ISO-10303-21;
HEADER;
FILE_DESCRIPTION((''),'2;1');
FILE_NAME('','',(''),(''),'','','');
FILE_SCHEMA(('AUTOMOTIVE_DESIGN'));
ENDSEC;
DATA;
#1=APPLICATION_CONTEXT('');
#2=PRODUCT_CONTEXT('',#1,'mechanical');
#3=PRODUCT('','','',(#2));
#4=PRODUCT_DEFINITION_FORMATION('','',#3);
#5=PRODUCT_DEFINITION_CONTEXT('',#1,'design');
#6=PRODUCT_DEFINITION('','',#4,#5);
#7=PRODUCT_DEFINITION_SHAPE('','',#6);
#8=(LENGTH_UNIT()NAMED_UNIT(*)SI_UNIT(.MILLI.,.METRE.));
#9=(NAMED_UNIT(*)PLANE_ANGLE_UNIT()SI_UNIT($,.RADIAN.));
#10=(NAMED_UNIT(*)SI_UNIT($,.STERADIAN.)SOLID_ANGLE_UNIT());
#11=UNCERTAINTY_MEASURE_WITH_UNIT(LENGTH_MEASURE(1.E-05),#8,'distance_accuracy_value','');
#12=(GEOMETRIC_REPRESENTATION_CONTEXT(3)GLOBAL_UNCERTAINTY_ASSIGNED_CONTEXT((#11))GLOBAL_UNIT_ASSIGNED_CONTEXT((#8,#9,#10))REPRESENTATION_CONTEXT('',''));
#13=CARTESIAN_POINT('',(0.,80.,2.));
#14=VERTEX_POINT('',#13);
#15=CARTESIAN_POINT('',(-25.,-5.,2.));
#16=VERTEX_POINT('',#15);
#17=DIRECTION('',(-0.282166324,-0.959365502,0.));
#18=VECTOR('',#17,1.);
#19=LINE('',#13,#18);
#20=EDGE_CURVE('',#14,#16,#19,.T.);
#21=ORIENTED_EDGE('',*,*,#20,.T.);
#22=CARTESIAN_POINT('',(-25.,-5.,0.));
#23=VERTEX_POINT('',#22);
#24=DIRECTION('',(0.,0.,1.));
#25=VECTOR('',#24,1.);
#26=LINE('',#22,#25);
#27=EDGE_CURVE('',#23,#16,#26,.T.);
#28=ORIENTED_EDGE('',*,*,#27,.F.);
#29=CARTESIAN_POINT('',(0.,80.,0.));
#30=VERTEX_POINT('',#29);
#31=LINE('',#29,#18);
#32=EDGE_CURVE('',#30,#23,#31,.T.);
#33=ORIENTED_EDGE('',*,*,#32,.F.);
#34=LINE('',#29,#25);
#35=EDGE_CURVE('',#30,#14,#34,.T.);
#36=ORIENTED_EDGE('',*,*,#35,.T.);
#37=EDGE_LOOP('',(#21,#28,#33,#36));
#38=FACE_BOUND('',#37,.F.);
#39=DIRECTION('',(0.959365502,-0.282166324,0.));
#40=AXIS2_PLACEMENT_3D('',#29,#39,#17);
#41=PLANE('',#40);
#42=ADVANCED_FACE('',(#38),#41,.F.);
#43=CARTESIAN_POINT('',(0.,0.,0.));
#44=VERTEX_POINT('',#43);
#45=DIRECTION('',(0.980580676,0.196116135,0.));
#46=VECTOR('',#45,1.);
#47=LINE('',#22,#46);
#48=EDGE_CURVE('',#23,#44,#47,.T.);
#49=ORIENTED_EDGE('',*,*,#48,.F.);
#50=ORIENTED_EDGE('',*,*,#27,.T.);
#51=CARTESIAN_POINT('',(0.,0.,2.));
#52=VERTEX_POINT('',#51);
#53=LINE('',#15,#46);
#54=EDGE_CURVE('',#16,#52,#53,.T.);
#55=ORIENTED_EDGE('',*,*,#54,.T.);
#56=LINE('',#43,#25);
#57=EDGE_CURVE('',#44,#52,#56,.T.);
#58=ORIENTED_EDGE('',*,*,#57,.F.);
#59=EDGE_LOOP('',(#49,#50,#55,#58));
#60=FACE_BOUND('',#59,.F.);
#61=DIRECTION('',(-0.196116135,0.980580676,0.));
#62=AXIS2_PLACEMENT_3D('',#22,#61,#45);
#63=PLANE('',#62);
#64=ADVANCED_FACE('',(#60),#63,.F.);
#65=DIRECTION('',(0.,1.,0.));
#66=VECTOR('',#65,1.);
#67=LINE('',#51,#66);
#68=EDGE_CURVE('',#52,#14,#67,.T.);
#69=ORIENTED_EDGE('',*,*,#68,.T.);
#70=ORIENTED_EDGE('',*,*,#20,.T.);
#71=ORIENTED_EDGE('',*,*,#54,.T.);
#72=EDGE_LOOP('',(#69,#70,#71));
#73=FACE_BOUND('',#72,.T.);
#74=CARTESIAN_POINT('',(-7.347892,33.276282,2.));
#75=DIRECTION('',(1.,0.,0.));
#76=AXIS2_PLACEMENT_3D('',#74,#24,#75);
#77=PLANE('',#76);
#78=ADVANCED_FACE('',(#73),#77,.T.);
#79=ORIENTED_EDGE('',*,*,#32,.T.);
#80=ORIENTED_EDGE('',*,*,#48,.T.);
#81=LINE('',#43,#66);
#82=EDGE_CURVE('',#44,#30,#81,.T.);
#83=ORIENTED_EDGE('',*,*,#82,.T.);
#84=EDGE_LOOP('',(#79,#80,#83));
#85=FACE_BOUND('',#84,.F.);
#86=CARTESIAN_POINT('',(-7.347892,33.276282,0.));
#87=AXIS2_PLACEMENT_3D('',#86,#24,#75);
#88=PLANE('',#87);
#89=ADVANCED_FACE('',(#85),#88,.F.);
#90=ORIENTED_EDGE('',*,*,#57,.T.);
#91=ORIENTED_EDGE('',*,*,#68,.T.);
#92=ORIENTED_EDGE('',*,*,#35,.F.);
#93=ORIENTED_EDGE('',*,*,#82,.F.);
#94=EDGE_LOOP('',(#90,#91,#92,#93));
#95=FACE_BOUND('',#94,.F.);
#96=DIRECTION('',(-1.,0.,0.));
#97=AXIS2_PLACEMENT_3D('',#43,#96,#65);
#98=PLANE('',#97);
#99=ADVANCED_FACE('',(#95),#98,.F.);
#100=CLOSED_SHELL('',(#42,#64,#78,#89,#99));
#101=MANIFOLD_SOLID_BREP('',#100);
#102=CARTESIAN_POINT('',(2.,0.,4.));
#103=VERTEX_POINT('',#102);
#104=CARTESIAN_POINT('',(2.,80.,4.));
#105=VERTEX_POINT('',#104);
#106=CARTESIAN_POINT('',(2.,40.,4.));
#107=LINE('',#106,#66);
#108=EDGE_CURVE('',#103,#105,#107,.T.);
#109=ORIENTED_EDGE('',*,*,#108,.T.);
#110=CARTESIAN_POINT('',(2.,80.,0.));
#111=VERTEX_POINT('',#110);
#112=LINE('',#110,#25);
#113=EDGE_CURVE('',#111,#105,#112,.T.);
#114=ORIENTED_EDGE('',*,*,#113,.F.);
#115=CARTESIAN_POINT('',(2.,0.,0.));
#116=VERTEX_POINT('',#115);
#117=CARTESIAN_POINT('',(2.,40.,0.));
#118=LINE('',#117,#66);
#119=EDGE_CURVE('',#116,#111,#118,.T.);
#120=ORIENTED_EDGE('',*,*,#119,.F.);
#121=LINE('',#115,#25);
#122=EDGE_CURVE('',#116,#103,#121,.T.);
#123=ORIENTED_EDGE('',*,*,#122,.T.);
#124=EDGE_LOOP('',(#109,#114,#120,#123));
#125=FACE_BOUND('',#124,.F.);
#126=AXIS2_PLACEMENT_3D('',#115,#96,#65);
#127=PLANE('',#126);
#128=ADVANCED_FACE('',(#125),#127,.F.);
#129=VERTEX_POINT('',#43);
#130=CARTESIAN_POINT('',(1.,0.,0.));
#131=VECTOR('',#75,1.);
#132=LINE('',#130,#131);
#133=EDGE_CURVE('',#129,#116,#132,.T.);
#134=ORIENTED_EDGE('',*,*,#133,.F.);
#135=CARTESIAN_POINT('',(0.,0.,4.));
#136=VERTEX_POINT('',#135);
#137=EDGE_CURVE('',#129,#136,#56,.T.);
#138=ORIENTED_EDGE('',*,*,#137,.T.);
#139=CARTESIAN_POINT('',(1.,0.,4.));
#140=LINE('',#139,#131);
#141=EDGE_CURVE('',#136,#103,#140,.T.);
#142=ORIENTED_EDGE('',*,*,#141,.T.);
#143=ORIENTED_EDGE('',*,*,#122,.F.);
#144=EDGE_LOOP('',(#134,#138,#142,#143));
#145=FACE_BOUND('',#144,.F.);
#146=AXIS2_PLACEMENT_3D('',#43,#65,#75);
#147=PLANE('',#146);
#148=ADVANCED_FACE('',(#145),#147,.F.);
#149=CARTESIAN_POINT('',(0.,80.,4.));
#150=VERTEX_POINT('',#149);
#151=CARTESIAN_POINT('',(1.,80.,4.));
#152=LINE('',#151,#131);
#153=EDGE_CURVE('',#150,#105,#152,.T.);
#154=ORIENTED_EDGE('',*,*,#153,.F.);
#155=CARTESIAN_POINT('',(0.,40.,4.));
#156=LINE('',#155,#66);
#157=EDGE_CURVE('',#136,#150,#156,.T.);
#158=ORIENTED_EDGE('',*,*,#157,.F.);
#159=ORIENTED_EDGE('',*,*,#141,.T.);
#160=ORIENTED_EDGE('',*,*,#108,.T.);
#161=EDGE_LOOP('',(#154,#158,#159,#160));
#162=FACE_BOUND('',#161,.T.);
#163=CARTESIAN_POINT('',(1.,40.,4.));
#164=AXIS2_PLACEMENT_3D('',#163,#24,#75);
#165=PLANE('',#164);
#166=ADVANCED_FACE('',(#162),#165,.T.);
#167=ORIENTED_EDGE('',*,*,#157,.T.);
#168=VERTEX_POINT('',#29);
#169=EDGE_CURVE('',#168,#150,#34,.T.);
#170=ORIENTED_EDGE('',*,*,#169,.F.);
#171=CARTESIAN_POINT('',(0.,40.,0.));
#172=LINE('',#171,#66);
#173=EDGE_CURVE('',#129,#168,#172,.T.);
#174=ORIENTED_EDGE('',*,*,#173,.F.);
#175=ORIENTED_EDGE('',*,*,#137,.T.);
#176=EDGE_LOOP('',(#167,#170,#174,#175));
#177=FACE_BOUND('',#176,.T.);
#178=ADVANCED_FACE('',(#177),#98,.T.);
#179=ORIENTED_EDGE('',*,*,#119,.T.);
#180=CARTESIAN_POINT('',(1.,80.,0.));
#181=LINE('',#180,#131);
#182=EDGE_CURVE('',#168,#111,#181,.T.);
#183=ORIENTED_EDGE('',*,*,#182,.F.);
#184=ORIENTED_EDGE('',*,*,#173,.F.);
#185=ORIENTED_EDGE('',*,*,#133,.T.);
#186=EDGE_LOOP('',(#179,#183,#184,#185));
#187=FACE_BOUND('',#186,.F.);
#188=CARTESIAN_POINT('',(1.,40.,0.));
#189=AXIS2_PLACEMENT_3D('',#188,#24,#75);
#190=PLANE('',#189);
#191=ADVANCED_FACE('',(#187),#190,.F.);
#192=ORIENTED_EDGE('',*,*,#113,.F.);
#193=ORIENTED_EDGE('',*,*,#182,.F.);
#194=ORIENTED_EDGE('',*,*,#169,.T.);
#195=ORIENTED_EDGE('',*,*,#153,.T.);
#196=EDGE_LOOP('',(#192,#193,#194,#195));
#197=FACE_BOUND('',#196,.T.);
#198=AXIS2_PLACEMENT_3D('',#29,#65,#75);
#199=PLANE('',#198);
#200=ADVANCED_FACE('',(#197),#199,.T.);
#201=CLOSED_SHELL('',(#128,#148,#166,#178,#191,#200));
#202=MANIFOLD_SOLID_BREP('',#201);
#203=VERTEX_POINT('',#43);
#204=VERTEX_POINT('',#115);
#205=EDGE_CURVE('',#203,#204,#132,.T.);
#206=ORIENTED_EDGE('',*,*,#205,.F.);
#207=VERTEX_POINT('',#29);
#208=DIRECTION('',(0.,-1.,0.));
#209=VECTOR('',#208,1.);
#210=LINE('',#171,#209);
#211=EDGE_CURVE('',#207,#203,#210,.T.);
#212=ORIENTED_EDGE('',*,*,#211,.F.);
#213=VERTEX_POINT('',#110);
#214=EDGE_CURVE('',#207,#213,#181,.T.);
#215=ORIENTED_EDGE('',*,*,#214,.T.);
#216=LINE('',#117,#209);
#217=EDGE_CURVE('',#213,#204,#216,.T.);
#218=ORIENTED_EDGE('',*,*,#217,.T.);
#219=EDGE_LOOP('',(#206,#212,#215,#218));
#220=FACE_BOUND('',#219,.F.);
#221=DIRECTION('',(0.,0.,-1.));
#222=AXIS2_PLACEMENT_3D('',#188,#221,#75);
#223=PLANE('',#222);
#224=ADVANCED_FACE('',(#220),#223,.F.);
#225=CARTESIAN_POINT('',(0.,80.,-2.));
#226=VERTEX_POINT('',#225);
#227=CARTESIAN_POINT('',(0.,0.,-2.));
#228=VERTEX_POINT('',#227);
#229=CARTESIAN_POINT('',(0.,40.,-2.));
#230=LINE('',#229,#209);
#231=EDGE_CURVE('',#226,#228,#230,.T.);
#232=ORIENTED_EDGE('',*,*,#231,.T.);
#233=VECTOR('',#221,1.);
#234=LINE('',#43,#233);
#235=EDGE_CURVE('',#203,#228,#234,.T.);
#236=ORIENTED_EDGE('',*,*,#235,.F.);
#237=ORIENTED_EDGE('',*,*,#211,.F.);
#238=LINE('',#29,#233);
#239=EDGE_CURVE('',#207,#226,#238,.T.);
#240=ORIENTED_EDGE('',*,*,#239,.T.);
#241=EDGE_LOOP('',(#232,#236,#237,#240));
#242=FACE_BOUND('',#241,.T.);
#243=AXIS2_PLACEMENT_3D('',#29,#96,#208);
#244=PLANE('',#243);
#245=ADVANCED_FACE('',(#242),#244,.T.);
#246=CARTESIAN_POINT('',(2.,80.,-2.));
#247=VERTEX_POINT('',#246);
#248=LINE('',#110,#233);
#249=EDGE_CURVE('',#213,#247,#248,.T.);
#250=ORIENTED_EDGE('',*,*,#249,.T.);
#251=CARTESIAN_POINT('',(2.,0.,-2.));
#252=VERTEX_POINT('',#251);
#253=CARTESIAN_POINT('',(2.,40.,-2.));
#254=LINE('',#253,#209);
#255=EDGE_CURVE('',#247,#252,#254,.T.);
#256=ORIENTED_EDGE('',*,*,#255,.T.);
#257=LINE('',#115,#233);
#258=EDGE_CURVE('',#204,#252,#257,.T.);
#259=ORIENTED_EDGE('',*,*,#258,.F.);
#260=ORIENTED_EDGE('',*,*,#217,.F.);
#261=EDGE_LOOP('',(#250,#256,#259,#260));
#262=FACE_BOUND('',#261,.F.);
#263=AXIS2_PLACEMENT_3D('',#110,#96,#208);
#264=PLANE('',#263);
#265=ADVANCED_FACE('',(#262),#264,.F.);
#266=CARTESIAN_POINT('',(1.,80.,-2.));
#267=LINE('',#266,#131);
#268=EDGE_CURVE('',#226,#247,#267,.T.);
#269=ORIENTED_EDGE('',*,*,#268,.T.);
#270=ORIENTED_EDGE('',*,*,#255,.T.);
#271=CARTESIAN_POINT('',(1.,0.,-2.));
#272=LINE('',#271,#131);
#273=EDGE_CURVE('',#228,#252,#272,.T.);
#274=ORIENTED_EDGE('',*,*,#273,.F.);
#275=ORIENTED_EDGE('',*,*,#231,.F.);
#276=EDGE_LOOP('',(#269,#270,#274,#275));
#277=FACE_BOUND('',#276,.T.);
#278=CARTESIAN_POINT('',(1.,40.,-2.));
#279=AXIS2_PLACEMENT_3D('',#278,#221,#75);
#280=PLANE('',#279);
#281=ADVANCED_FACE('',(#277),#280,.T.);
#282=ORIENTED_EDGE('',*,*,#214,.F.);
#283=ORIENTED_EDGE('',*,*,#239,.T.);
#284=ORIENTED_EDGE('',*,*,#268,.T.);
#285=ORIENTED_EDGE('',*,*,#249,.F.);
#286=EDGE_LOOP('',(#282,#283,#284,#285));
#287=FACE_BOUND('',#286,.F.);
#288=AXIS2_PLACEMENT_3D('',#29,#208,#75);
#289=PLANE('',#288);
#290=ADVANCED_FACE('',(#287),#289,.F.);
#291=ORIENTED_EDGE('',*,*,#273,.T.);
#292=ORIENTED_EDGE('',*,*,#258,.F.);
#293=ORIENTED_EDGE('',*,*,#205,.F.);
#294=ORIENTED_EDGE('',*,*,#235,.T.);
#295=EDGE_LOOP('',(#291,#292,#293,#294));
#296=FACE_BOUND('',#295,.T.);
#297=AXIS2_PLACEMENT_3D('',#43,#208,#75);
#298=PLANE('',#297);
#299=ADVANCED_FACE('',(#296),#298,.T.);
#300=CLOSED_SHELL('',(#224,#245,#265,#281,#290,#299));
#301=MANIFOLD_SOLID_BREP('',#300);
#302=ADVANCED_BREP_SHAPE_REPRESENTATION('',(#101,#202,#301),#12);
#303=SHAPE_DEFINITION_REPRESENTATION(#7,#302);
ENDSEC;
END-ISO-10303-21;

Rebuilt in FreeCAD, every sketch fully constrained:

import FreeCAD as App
import Part
import Sketcher

V = App.Vector


def add_polygon(sketch, points):
    """Adds a closed chain of lines whose ends are joined by coincident constraints."""
    first, n = sketch.GeometryCount, len(points)
    for a, b in zip(points, points[1:] + points[:1]):
        sketch.addGeometry(Part.LineSegment(App.Vector(*a, 0), App.Vector(*b, 0)), False)
    for i in range(n):
        sketch.addConstraint(Sketcher.Constraint("Coincident", first + i, 2, first + (i + 1) % n, 1))

doc = App.newDocument("Part")
params = doc.addObject("Spreadsheet::Sheet", "Params")
for row, (alias, value) in enumerate([
    ("sketch1_height", "80 mm"),
    ("pad1_length", "2 mm"),
    ("sketch2_width", "2 mm"),
    ("sketch2_height", "80 mm"),
    ("pad2_length", "2 mm"),
    ("sketch3_width", "2 mm"),
    ("sketch3_height", "80 mm"),
    ("pad3_length", "4 mm"),
], start=1):
    params.set(f"A{row}", alias)
    params.set(f"B{row}", "=" + value)
    params.setAlias(f"B{row}", alias)

body = doc.addObject("PartDesign::Body", "Body")

sketch1 = doc.addObject("Sketcher::SketchObject", "Sketch")
body.addObject(sketch1)
sketch1.AttachmentSupport = (doc.XY_Plane, [""])
sketch1.MapMode = "FlatFace"
add_polygon(sketch1, [(-25, -5), (0, 0), (0, 80)])
sketch1.addConstraint([
    Sketcher.Constraint("Vertical", 1),
    Sketcher.Constraint("Coincident", 0, 2, -1, 1),
    Sketcher.Constraint("DistanceY", 1, 1, 1, 2, 80.0),
    Sketcher.Constraint("DistanceX", 2, 2, -1, 1, 25.0),
    Sketcher.Constraint("DistanceY", 2, 2, -1, 1, 5.0),
])
sketch1.setExpression("Constraints[5]", "Params.sketch1_height")
pad1 = doc.addObject("PartDesign::Pad", "Pad")
body.addObject(pad1)
pad1.Profile = sketch1
pad1.setExpression("Length", "Params.pad1_length")
body2 = doc.addObject("PartDesign::Body", "Body001")

sketch2 = doc.addObject("Sketcher::SketchObject", "Sketch001")
body2.addObject(sketch2)
sketch2.AttachmentSupport = (doc.getObject("XY_Plane001"), [""])
sketch2.MapMode = "FlatFace"
add_polygon(sketch2, [(0, 0), (0, 80), (2, 80), (2, 0)])
sketch2.addConstraint([
    Sketcher.Constraint("Vertical", 0),
    Sketcher.Constraint("Horizontal", 1),
    Sketcher.Constraint("Vertical", 2),
    Sketcher.Constraint("Horizontal", 3),
    Sketcher.Constraint("Coincident", 3, 2, -1, 1),
    Sketcher.Constraint("DistanceX", 1, 1, 1, 2, 2.0),
    Sketcher.Constraint("DistanceY", 0, 1, 0, 2, 80.0),
])
sketch2.setExpression("Constraints[9]", "Params.sketch2_width")
sketch2.setExpression("Constraints[10]", "Params.sketch2_height")
pad2 = doc.addObject("PartDesign::Pad", "Pad001")
body2.addObject(pad2)
pad2.Profile = sketch2
pad2.setExpression("Length", "Params.pad2_length")
pad2.Reversed = True
body3 = doc.addObject("PartDesign::Body", "Body002")

sketch3 = doc.addObject("Sketcher::SketchObject", "Sketch002")
body3.addObject(sketch3)
sketch3.AttachmentSupport = (doc.getObject("XY_Plane002"), [""])
sketch3.MapMode = "FlatFace"
add_polygon(sketch3, [(0, 80), (0, 0), (2, 0), (2, 80)])
sketch3.addConstraint([
    Sketcher.Constraint("Vertical", 0),
    Sketcher.Constraint("Horizontal", 1),
    Sketcher.Constraint("Vertical", 2),
    Sketcher.Constraint("Horizontal", 3),
    Sketcher.Constraint("Coincident", 0, 2, -1, 1),
    Sketcher.Constraint("DistanceX", 1, 1, 1, 2, 2.0),
    Sketcher.Constraint("DistanceY", 0, 2, 0, 1, 80.0),
])
sketch3.setExpression("Constraints[9]", "Params.sketch3_width")
sketch3.setExpression("Constraints[10]", "Params.sketch3_height")
pad3 = doc.addObject("PartDesign::Pad", "Pad002")
body3.addObject(pad3)
pad3.Profile = sketch3
pad3.setExpression("Length", "Params.pad3_length")

doc.recompute()
